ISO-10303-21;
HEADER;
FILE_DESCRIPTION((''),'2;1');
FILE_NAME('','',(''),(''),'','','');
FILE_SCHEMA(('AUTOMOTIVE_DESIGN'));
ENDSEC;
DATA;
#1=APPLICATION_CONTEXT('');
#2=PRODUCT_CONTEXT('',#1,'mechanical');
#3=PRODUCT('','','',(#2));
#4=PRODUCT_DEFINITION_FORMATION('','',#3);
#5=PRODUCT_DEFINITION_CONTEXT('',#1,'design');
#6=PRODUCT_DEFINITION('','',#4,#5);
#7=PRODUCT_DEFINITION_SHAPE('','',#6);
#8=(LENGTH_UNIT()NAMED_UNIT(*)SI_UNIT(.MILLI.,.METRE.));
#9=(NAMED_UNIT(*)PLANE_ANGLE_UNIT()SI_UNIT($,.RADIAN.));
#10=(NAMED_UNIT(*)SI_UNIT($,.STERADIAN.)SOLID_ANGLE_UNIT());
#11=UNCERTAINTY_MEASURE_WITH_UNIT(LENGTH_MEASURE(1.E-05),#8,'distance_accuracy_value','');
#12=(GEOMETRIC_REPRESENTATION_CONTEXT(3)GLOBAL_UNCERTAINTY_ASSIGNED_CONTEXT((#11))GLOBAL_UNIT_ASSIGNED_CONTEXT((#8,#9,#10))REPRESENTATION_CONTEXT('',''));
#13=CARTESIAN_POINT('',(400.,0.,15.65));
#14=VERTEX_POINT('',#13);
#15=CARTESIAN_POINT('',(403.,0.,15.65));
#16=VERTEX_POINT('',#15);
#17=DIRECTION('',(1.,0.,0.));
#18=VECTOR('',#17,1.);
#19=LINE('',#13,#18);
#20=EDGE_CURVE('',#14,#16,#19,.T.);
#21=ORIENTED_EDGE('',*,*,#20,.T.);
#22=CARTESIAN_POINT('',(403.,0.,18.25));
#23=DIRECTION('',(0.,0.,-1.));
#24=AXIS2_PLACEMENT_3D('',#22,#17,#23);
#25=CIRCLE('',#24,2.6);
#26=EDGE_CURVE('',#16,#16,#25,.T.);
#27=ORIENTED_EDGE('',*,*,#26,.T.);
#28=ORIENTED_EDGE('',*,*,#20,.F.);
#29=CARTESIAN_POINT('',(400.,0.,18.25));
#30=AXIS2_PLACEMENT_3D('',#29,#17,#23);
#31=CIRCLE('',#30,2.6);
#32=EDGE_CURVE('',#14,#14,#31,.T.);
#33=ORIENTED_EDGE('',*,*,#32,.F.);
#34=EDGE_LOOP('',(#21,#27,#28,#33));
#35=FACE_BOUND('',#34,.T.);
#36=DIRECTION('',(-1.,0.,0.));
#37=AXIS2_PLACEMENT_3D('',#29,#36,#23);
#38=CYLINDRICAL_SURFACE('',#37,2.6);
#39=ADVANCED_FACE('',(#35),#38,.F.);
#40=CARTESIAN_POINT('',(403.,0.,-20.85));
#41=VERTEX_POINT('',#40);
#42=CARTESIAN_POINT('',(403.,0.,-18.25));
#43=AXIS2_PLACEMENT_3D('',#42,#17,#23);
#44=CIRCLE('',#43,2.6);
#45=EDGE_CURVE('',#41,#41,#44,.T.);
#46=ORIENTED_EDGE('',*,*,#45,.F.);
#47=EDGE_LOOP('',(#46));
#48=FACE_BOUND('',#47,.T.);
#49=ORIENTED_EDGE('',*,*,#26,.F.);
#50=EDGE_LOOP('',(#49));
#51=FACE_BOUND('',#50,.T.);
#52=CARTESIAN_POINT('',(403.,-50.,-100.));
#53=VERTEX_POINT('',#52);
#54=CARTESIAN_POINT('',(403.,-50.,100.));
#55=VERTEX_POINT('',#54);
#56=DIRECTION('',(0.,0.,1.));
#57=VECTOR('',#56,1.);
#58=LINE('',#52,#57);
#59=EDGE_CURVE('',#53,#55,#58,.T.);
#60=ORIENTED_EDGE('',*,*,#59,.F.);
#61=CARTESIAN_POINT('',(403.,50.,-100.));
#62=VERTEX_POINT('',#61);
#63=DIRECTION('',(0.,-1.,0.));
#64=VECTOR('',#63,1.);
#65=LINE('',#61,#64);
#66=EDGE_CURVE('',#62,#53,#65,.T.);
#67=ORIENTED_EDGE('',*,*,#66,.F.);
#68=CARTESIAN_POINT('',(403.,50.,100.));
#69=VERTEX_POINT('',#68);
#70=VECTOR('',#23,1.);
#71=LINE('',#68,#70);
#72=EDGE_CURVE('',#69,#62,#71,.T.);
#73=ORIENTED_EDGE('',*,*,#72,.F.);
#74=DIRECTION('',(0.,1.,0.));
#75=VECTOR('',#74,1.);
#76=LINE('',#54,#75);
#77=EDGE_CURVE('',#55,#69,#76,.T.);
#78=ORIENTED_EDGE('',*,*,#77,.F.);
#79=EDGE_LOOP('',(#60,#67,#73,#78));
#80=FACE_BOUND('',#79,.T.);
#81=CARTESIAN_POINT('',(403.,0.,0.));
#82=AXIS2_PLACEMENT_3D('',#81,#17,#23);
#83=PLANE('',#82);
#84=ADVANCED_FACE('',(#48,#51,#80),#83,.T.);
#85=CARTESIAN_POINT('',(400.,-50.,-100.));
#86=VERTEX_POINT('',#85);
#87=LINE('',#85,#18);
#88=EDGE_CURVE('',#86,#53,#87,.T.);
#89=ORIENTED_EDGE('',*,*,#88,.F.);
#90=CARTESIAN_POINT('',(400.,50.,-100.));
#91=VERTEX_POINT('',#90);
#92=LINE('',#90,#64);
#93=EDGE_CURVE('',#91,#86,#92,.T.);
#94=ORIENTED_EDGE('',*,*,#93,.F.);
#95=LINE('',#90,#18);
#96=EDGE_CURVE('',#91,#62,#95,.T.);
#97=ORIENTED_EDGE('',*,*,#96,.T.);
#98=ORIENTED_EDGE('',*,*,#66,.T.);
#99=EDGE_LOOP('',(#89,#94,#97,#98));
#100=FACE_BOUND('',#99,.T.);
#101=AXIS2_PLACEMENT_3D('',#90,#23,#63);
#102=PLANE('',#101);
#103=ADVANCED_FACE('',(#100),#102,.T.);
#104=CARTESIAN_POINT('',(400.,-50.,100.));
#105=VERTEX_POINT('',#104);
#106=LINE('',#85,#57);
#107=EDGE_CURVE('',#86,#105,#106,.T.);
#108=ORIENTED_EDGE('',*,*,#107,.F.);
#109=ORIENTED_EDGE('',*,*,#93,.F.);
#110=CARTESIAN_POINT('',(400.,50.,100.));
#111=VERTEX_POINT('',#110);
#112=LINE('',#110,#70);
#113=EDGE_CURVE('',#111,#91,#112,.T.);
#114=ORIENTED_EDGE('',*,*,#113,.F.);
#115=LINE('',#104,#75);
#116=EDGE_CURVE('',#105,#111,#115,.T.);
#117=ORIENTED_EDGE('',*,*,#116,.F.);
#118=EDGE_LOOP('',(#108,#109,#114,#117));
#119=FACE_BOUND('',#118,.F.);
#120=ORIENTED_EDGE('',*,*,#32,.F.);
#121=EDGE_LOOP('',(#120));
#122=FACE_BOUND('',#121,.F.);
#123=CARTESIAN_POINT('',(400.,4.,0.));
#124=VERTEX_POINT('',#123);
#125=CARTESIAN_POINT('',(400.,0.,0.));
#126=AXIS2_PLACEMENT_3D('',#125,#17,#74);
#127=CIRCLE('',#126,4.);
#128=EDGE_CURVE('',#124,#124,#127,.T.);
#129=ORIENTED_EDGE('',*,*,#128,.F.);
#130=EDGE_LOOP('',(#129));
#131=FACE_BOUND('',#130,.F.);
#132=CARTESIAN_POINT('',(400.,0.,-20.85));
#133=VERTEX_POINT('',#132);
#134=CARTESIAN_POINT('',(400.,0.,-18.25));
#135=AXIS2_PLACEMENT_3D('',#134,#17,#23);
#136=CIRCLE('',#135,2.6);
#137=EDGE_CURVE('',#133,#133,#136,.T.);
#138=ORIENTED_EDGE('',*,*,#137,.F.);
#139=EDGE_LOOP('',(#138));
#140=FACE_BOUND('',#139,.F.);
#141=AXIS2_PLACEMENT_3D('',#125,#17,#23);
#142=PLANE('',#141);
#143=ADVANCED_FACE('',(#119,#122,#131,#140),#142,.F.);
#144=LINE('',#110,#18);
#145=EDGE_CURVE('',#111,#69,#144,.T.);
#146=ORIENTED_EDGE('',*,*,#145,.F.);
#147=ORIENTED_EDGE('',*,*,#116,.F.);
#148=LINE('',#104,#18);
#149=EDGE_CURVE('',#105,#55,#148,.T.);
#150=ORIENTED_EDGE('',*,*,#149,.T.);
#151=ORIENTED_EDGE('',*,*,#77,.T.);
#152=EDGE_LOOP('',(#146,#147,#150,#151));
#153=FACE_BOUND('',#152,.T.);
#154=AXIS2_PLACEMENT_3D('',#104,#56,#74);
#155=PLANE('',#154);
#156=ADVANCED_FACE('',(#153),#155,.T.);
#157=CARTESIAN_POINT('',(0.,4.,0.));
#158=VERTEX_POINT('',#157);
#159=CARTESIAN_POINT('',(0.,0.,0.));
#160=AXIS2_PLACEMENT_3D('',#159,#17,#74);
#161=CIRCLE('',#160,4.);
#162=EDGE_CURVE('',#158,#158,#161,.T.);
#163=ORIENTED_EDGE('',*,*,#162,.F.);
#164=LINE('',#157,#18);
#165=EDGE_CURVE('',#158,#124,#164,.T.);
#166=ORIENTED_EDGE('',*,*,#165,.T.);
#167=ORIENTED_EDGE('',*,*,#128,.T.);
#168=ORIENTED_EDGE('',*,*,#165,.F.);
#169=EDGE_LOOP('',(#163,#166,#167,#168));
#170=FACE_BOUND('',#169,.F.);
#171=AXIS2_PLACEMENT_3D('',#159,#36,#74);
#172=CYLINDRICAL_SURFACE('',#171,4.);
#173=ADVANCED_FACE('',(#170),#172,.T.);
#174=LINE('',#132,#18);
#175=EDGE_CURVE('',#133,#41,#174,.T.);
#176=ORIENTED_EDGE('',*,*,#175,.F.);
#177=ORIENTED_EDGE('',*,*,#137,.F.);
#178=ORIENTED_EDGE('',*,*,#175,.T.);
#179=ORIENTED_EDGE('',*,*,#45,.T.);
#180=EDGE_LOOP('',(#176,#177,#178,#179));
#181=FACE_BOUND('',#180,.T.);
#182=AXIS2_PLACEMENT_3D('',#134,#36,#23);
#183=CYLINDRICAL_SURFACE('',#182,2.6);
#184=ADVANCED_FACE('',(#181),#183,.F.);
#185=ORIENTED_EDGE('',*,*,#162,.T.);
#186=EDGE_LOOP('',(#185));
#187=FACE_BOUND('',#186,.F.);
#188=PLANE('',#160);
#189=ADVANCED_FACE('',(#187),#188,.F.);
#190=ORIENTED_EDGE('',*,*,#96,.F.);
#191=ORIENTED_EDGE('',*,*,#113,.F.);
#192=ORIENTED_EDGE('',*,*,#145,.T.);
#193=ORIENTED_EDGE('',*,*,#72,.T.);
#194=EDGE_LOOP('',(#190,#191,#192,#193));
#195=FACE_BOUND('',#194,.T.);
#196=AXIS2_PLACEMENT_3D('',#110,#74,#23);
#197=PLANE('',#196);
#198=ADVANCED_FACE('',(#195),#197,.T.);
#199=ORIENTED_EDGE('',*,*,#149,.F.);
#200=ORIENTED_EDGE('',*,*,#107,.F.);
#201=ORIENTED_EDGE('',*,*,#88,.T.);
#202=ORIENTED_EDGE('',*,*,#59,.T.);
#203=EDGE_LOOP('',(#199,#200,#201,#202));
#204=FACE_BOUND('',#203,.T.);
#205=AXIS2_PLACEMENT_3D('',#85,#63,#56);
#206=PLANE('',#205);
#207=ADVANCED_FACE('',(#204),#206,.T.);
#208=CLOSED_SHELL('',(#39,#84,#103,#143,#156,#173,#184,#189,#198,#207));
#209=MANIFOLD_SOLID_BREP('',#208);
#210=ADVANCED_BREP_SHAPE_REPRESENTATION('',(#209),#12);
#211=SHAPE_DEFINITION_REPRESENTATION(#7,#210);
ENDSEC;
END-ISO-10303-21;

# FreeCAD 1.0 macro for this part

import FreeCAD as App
import Part
import Sketcher
from FreeCAD import Vector

doc = App.newDocument("Part")
params = doc.addObject("Spreadsheet::Sheet", "Params")
for row, (alias, value) in enumerate([
    ("sketch1_diameter", "8 mm"),
    ("pad1_length", "400 mm"),
    ("sketch2_diameter", "5.2 mm"),
    ("sketch2_width", "100 mm"),
    ("sketch2_height", "200 mm"),
    ("pad2_length", "3 mm"),
], start=1):
    params.set(f"A{row}", alias)
    params.set(f"B{row}", "=" + value)
    params.setAlias(f"B{row}", alias)

body = doc.addObject("PartDesign::Body", "Body")

sketch1 = body.newObject("Sketcher::SketchObject", "Sketch")
sketch1.AttachmentSupport = (doc.getObject("YZ_Plane"), [""])
sketch1.MapMode = "FlatFace"
sketch1.addGeometry(Part.Circle(Vector(0, 0, 0), Vector(0, 0, 1), 4), False)
sketch1.addConstraint(Sketcher.Constraint("Coincident", 0, 3, -1, 1))
sketch1.addConstraint(Sketcher.Constraint("Diameter", 0, 8.0))
sketch1.setExpression("Constraints[1]", "Params.sketch1_diameter")
pad1 = body.newObject("PartDesign::Pad", "Pad")
pad1.Profile = sketch1
pad1.setExpression("Length", "Params.pad1_length")

sketch2 = body.newObject("Sketcher::SketchObject", "Sketch001")
sketch2.AttachmentSupport = (doc.getObject("YZ_Plane"), [""])
sketch2.MapMode = "FlatFace"
sketch2.AttachmentOffset = App.Placement(Vector(0, 0, 400), App.Rotation())
sketch2.addGeometry(Part.LineSegment(Vector(50, -100, 0), Vector(50, 100, 0)), False)
sketch2.addGeometry(Part.LineSegment(Vector(50, 100, 0), Vector(-50, 100, 0)), False)
sketch2.addGeometry(Part.LineSegment(Vector(-50, 100, 0), Vector(-50, -100, 0)), False)
sketch2.addGeometry(Part.LineSegment(Vector(-50, -100, 0), Vector(50, -100, 0)), False)
sketch2.addGeometry(Part.Circle(Vector(0, 18.2, 0), Vector(0, 0, 1), 2.6), False)
sketch2.addGeometry(Part.Circle(Vector(0, -18.2, 0), Vector(0, 0, 1), 2.6), False)
sketch2.addConstraint(Sketcher.Constraint("Coincident", 0, 2, 1, 1))
sketch2.addConstraint(Sketcher.Constraint("Coincident", 1, 2, 2, 1))
sketch2.addConstraint(Sketcher.Constraint("Coincident", 2, 2, 3, 1))
sketch2.addConstraint(Sketcher.Constraint("Coincident", 3, 2, 0, 1))
sketch2.addConstraint(Sketcher.Constraint("Vertical", 0))
sketch2.addConstraint(Sketcher.Constraint("Horizontal", 1))
sketch2.addConstraint(Sketcher.Constraint("Vertical", 2))
sketch2.addConstraint(Sketcher.Constraint("Horizontal", 3))
sketch2.addConstraint(Sketcher.Constraint("Equal", 4, 5))
sketch2.addConstraint(Sketcher.Constraint("Symmetric", 4, 3, 5, 3, -1, 1))
sketch2.addConstraint(Sketcher.Constraint("Symmetric", 0, 2, 2, 2, -1, 1))
sketch2.addConstraint(Sketcher.Constraint("PointOnObject", 4, 3, -2))
sketch2.addConstraint(Sketcher.Constraint("Diameter", 4, 5.2))
sketch2.addConstraint(Sketcher.Constraint("DistanceX", 1, 2, 1, 1, 100.0))
sketch2.addConstraint(Sketcher.Constraint("DistanceY", 0, 1, 0, 2, 200.0))
sketch2.addConstraint(Sketcher.Constraint("DistanceY", -1, 1, 4, 3, 18.25))
sketch2.setExpression("Constraints[12]", "Params.sketch2_diameter")
sketch2.setExpression("Constraints[13]", "Params.sketch2_width")
sketch2.setExpression("Constraints[14]", "Params.sketch2_height")
pad2 = body.newObject("PartDesign::Pad", "Pad001")
pad2.Profile = sketch2
pad2.setExpression("Length", "Params.pad2_length")

doc.recompute()
